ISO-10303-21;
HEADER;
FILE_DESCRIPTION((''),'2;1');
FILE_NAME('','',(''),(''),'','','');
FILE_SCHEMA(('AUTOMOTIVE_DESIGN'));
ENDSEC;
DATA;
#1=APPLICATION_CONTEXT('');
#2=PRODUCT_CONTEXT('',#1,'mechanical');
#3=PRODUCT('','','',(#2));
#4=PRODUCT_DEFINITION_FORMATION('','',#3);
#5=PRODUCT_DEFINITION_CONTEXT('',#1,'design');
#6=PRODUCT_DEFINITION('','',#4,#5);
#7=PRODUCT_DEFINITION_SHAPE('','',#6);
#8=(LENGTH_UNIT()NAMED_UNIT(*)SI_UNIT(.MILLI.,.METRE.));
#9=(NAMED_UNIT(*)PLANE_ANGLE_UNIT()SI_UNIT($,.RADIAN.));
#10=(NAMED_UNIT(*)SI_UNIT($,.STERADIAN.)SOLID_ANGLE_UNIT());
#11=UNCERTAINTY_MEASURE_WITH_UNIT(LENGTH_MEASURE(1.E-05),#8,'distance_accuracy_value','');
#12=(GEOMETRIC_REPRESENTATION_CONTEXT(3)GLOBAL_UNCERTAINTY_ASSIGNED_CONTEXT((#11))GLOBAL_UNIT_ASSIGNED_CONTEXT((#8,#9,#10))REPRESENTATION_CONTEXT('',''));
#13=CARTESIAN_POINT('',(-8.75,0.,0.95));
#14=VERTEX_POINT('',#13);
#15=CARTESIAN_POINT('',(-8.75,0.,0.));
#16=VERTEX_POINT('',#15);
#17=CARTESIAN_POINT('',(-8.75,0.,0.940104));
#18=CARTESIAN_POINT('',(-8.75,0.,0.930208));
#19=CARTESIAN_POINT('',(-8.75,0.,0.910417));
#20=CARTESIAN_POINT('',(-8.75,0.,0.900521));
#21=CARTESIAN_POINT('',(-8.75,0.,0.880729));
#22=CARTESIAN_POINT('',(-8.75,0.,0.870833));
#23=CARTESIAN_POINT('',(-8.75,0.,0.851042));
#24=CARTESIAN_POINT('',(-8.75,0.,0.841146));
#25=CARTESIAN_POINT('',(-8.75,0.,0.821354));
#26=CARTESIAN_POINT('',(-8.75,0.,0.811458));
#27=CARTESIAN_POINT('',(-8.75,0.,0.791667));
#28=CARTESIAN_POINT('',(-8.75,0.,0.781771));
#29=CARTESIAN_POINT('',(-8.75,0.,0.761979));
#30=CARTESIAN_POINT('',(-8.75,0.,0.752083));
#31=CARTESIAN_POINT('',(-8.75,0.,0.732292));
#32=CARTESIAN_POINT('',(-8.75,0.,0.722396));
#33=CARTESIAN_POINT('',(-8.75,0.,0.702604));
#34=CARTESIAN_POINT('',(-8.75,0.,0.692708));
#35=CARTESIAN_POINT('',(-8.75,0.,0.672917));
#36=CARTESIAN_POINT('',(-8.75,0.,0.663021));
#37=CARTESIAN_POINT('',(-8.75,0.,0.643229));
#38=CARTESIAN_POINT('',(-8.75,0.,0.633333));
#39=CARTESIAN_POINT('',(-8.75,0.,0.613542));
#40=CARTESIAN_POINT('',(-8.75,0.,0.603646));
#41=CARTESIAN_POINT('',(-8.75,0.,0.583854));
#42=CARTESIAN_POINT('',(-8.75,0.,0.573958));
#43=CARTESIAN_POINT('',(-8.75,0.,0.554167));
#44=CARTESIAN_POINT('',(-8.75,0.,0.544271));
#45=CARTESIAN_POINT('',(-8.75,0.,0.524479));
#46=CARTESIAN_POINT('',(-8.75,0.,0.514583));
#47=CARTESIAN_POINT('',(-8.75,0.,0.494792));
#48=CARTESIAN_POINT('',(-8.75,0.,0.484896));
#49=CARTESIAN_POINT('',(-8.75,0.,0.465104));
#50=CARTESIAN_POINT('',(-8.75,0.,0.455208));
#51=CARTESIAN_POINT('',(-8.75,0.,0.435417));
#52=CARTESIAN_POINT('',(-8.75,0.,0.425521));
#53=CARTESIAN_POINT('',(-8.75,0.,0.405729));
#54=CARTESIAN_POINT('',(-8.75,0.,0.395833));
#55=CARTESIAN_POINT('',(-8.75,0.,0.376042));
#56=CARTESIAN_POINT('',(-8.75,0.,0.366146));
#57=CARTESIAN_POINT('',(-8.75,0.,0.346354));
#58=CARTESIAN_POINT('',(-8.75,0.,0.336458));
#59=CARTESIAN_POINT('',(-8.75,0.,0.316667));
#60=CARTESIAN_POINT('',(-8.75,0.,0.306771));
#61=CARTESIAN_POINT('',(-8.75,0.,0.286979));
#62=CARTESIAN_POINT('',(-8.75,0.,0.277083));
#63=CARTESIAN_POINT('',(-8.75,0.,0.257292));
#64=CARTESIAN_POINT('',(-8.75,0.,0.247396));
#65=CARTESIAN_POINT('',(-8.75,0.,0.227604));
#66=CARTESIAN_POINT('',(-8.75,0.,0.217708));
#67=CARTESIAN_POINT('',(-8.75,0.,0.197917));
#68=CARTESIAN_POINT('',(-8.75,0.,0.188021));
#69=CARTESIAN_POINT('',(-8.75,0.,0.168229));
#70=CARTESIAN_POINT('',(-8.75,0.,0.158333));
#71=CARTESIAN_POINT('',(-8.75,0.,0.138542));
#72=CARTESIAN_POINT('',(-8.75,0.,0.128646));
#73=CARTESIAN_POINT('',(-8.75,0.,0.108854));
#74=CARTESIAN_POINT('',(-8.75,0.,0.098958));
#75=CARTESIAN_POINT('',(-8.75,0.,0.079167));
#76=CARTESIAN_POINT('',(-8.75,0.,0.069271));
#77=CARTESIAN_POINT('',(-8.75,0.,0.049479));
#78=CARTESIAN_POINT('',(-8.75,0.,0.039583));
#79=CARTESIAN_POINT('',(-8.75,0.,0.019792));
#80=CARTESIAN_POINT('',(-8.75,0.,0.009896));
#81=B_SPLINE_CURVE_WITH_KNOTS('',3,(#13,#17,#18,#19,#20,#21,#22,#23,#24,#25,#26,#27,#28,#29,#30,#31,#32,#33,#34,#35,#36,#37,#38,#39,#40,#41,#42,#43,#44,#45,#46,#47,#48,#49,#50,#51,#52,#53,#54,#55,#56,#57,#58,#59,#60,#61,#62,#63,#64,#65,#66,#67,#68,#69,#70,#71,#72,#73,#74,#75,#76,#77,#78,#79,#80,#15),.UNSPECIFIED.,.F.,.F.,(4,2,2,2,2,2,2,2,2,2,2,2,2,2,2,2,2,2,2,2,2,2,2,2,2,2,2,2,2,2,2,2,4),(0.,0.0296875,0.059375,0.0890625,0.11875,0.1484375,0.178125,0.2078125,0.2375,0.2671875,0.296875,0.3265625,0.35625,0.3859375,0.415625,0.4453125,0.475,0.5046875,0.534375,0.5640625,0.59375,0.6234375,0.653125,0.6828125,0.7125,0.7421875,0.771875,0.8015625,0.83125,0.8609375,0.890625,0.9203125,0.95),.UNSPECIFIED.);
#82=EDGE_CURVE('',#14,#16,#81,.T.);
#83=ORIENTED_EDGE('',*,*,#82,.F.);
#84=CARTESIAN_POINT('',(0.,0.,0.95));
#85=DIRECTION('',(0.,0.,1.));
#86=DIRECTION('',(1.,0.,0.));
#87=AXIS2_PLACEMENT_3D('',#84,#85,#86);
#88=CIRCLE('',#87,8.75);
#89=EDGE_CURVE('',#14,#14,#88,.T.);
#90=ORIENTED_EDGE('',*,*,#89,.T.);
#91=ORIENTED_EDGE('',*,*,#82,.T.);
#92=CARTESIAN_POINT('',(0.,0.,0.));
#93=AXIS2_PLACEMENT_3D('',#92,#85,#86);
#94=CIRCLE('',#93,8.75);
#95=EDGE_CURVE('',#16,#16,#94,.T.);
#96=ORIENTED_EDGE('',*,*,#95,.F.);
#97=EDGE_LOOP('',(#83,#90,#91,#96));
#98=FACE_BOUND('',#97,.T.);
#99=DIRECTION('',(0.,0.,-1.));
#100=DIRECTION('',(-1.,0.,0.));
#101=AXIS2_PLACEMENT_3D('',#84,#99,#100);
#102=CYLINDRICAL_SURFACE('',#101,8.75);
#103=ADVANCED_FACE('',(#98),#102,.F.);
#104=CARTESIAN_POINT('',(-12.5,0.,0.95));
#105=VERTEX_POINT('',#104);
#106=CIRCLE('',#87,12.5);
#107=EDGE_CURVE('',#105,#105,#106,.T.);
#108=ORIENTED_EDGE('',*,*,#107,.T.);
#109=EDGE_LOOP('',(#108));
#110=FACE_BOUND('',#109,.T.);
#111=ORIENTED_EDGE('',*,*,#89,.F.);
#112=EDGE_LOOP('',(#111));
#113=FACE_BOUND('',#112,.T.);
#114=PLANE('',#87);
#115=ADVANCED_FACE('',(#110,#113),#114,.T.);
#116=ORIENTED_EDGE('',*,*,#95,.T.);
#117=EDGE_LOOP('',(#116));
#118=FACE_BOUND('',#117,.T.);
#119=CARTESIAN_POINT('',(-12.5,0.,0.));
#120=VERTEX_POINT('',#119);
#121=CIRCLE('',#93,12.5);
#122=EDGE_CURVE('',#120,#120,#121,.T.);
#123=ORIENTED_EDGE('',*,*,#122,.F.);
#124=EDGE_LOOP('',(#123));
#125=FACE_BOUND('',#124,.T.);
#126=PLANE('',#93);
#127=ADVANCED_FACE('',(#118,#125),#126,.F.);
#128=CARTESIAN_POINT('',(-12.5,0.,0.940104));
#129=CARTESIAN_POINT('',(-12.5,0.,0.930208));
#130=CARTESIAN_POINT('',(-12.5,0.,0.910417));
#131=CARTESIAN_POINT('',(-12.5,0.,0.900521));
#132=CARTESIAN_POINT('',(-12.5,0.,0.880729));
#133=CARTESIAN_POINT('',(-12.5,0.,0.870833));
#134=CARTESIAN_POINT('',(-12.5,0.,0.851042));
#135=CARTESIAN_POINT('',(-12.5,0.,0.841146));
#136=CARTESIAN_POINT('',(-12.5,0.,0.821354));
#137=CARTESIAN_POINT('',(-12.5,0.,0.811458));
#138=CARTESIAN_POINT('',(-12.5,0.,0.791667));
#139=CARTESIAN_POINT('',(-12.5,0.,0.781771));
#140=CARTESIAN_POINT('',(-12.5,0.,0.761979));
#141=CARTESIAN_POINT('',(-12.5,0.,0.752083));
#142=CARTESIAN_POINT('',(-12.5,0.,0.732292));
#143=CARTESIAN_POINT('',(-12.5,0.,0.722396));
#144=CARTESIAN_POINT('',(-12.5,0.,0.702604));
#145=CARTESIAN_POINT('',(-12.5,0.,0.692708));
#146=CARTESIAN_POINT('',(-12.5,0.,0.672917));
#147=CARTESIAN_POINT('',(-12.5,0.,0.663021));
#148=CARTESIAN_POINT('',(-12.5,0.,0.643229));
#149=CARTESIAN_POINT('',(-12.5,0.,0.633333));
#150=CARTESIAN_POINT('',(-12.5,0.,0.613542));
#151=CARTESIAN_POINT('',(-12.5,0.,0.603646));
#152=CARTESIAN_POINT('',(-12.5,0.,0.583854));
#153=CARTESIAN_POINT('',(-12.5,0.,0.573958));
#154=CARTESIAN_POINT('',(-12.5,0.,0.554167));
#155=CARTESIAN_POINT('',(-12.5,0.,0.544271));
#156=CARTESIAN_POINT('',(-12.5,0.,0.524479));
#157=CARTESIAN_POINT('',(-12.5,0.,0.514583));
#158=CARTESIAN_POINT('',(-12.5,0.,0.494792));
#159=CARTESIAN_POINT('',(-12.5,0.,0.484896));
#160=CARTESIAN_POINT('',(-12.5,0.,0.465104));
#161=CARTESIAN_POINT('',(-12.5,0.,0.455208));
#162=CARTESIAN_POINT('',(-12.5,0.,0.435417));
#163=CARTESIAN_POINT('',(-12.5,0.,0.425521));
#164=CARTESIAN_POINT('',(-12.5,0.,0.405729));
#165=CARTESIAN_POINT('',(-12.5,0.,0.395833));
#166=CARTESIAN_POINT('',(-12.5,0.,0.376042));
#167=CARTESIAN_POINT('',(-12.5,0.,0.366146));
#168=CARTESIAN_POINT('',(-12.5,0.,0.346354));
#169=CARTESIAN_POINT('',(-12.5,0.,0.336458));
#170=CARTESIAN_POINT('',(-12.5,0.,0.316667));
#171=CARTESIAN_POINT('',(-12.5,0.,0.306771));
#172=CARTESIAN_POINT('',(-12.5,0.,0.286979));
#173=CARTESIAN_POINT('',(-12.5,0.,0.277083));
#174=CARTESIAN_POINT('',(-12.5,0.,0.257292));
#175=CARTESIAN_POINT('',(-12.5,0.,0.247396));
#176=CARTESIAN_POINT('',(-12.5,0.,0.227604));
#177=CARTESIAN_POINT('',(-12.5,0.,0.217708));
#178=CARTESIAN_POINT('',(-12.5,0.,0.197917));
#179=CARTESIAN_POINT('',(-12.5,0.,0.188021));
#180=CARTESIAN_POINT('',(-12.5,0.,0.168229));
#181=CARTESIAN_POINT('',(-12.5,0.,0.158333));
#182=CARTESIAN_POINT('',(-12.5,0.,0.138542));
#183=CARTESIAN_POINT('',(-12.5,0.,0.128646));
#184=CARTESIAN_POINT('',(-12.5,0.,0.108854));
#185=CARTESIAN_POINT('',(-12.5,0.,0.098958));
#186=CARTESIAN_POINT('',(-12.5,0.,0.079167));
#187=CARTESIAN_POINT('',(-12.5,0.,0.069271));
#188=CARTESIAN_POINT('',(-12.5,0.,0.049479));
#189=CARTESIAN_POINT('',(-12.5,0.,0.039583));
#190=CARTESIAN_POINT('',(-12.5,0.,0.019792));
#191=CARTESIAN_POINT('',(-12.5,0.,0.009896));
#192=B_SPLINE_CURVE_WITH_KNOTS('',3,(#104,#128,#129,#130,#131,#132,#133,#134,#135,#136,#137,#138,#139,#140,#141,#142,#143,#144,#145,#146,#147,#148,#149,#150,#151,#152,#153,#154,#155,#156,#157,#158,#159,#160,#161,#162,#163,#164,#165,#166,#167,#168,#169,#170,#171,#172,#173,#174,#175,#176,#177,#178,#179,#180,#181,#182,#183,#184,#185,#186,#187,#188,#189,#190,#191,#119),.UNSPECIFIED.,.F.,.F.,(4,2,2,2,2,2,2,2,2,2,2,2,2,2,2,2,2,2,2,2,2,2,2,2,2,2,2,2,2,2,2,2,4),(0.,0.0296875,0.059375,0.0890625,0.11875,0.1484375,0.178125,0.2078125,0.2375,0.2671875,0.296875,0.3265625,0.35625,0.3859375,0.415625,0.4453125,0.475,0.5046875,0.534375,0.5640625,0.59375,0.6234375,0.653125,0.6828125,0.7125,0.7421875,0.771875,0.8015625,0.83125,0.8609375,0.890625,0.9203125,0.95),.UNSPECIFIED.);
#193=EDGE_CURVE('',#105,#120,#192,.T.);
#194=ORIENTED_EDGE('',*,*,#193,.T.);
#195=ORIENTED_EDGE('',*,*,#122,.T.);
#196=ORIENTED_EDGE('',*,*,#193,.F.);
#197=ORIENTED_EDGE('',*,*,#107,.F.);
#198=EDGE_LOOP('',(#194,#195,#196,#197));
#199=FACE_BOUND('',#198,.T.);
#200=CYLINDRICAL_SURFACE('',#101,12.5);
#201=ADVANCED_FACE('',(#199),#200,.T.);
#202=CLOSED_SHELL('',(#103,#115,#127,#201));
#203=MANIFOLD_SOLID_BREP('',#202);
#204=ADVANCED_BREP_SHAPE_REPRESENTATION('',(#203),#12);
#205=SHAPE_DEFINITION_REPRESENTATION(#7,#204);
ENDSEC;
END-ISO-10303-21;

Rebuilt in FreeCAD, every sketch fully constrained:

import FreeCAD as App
import Part
import Sketcher

doc = App.newDocument("Part")
body = doc.addObject("PartDesign::Body", "Body")

# Sketch on XY plane
sketch1 = body.newObject("Sketcher::SketchObject", "Sketch")
sketch1.AttachmentSupport = (doc.getObject("XY_Plane"), [""])
sketch1.MapMode = "FlatFace"
sketch1.addGeometry([
    Part.Circle(App.Vector(0, 0, 0), App.Vector(0, 0, 1), 12),
    Part.Circle(App.Vector(0, 0, 0), App.Vector(0, 0, 1), 9),
], False)
sketch1.addConstraint([
    Sketcher.Constraint("Coincident", 0, 3, -1, 1),
    Sketcher.Constraint("Coincident", 1, 3, -1, 1),
    Sketcher.Constraint("Diameter", 0, 25.0),
    Sketcher.Constraint("Diameter", 1, 17.5),
])
pad1 = body.newObject("PartDesign::Pad", "Pad")
pad1.Profile = sketch1
pad1.Length = 0.95

doc.recompute()
